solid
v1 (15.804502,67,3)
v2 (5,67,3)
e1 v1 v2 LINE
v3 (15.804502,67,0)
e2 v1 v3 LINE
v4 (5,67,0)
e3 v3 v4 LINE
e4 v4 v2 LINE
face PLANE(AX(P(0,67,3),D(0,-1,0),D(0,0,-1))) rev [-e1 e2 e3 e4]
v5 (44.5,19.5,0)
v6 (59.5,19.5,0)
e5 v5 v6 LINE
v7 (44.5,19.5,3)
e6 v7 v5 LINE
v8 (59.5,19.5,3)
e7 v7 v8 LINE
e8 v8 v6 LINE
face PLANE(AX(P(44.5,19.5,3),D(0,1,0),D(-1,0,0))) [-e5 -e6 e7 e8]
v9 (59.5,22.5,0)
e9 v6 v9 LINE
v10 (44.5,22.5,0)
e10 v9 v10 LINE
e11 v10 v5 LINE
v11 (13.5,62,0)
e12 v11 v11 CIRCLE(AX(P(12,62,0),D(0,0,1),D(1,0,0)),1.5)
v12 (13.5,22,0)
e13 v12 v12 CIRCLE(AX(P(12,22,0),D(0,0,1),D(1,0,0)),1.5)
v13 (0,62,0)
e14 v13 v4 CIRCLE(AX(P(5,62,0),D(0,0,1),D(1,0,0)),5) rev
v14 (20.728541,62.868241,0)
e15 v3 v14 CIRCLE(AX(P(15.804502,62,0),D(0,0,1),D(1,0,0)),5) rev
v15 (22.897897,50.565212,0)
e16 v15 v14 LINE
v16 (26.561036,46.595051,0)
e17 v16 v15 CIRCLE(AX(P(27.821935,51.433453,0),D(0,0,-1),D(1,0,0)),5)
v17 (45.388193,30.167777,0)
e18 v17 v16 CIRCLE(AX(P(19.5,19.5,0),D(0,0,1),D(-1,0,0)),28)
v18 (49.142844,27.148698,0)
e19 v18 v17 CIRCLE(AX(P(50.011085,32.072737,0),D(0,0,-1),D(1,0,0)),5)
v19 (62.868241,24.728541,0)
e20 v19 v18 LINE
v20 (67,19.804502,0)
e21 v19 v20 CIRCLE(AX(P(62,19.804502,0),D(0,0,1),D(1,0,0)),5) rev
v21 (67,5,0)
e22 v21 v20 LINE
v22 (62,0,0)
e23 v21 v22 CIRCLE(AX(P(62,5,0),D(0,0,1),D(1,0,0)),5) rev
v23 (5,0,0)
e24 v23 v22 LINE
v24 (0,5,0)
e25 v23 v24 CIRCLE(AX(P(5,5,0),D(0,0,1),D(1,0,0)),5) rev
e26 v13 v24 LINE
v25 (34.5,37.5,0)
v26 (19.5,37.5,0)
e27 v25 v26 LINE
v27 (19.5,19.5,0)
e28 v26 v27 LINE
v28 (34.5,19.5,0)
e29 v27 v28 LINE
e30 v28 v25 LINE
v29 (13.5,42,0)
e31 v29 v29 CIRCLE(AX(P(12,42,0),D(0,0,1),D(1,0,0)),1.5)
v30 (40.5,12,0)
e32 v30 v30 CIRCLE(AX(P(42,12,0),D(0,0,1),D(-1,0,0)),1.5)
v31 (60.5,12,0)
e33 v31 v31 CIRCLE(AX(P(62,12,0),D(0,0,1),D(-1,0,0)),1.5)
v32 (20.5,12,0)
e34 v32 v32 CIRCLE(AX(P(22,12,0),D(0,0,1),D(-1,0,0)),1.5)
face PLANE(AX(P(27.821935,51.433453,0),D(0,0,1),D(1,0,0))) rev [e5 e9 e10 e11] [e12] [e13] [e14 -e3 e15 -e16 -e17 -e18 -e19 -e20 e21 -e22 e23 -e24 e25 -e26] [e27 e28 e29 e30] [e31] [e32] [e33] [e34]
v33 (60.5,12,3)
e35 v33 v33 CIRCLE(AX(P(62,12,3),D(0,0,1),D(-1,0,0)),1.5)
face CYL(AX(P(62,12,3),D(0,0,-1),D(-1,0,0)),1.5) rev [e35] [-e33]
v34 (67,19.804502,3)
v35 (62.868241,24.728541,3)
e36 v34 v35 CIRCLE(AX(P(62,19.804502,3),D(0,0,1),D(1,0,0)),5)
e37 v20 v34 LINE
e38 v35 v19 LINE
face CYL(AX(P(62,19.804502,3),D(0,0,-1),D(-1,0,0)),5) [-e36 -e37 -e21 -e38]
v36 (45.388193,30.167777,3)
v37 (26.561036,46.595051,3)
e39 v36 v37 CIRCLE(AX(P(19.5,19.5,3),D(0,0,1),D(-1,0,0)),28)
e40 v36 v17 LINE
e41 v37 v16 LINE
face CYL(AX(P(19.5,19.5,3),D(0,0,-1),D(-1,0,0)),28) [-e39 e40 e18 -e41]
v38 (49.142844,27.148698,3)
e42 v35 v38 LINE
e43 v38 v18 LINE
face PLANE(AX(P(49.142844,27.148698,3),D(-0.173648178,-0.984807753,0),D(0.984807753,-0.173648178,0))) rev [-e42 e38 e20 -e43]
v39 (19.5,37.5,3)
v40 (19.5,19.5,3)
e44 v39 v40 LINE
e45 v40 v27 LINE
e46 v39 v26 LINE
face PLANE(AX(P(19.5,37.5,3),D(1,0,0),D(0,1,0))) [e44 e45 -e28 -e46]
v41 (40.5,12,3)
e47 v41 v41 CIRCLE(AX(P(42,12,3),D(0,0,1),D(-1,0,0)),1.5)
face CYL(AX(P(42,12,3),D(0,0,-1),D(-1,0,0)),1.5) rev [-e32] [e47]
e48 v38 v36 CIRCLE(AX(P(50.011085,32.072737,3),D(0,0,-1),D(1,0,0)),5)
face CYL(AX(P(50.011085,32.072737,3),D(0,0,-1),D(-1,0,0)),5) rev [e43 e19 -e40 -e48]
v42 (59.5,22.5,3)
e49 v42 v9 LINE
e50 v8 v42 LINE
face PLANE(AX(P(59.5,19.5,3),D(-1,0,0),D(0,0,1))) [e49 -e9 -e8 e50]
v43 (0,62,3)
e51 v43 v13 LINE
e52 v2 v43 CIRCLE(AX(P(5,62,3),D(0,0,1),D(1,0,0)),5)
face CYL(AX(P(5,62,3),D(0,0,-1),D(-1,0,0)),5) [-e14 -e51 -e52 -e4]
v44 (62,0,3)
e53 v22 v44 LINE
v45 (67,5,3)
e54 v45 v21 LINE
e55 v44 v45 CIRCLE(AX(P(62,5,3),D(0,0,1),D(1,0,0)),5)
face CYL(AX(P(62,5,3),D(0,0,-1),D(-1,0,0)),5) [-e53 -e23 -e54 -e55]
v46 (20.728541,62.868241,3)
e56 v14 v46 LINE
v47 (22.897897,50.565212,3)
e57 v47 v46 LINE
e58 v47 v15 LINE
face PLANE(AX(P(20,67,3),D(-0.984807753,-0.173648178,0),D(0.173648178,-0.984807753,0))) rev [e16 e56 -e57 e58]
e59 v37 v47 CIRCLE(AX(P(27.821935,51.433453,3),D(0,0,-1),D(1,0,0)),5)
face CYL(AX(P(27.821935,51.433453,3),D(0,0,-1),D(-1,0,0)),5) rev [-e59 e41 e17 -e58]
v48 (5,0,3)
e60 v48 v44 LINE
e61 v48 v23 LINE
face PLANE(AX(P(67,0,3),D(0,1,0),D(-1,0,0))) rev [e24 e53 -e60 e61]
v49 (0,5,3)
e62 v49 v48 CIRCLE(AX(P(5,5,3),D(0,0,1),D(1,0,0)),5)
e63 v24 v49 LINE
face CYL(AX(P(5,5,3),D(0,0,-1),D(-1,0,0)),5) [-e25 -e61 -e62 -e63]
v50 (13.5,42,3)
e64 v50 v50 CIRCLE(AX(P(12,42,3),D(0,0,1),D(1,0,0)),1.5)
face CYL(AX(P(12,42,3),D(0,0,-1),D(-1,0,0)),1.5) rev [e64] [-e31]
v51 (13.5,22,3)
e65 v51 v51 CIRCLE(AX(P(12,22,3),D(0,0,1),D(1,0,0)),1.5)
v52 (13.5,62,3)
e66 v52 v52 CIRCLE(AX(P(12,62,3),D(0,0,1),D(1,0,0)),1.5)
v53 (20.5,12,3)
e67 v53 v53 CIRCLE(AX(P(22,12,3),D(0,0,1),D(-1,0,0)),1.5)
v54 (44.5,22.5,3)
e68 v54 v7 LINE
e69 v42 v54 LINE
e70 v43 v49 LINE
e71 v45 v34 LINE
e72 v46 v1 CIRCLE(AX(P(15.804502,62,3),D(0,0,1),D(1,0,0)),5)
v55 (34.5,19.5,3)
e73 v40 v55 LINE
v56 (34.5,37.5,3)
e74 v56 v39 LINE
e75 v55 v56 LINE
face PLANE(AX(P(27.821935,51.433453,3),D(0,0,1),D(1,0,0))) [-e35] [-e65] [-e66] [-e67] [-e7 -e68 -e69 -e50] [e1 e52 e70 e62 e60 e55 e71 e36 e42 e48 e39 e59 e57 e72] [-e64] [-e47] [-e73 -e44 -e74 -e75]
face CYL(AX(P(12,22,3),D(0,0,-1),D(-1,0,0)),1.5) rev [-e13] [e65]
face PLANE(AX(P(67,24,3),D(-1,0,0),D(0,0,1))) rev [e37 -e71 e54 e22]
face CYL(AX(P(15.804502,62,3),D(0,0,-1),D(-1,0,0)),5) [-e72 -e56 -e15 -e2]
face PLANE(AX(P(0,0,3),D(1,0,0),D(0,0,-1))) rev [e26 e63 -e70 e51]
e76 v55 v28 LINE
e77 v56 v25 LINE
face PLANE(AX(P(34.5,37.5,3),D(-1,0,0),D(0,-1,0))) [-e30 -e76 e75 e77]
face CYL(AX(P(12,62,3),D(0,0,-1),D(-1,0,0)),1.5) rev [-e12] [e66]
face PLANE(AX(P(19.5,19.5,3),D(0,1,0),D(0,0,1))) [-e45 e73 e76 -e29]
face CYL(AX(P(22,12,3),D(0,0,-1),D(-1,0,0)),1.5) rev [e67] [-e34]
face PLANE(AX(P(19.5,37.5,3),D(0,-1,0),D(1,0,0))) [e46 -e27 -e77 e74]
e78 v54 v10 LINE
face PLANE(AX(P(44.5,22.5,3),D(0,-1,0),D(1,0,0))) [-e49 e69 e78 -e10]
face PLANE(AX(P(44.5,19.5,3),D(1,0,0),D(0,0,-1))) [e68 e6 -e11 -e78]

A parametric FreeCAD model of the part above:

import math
import FreeCAD as App
import Part
import Sketcher

V = App.Vector
Q = App.Units.Quantity


def edges_at(feature, points):
    """Names of the edges that pass closest to the given points."""
    edges = feature.Shape.Edges
    near = lambda p: min(range(len(edges)), key=lambda i: edges[i].distToShape(Part.Vertex(*p))[0])
    return sorted({f"Edge{near(p) + 1}" for p in points})

doc = App.newDocument("Part")
body = doc.addObject("PartDesign::Body", "Body")

sketch1 = body.newObject("Sketcher::SketchObject", "Sketch")
sketch1.AttachmentSupport = (doc.getObject("XY_Plane"), [""])
sketch1.MapMode = "FlatFace"
sketch1.addGeometry([
    Part.LineSegment(V(0, 67, 0), V(0, 0, 0)),
    Part.LineSegment(V(0, 0, 0), V(67, 0, 0)),
    Part.LineSegment(V(67, 0, 0), V(67, 24, 0)),
    Part.LineSegment(V(67, 24, 0), V(49.1, 27.1, 0)),
    Part.ArcOfCircle(Part.Circle(V(50, 32.1, 0), V(0, 0, 1), 5), math.radians(-158), math.radians(-100)),
    Part.ArcOfCircle(Part.Circle(V(19.5, 19.5, 0), V(0, 0, 1), 28), math.radians(22), math.radians(75)),
    Part.ArcOfCircle(Part.Circle(V(27.8, 51.4, 0), V(0, 0, 1), 5), math.radians(-170), math.radians(-105)),
    Part.LineSegment(V(22.9, 50.6, 0), V(20, 67, 0)),
    Part.LineSegment(V(20, 67, 0), V(0, 67, 0)),
    Part.Circle(V(62, 12, 0), V(0, 0, 1), 1.5),
    Part.LineSegment(V(44.5, 19.5, 0), V(44.5, 22.5, 0)),
    Part.LineSegment(V(44.5, 22.5, 0), V(59.5, 22.5, 0)),
    Part.LineSegment(V(59.5, 22.5, 0), V(59.5, 19.5, 0)),
    Part.LineSegment(V(59.5, 19.5, 0), V(44.5, 19.5, 0)),
    Part.Circle(V(42, 12, 0), V(0, 0, 1), 1.5),
    Part.Circle(V(22, 12, 0), V(0, 0, 1), 1.5),
    Part.Circle(V(12, 22, 0), V(0, 0, 1), 1.5),
    Part.LineSegment(V(19.5, 19.5, 0), V(19.5, 37.5, 0)),
    Part.LineSegment(V(19.5, 37.5, 0), V(34.5, 37.5, 0)),
    Part.LineSegment(V(34.5, 37.5, 0), V(34.5, 19.5, 0)),
    Part.LineSegment(V(34.5, 19.5, 0), V(19.5, 19.5, 0)),
    Part.Circle(V(12, 42, 0), V(0, 0, 1), 1.5),
    Part.Circle(V(12, 62, 0), V(0, 0, 1), 1.5),
], False)
sketch1.addConstraint([
    Sketcher.Constraint("Coincident", 0, 2, 1, 1),
    Sketcher.Constraint("Coincident", 1, 2, 2, 1),
    Sketcher.Constraint("Coincident", 2, 2, 3, 1),
    Sketcher.Constraint("Tangent", 3, 2, 4, 2),
    Sketcher.Constraint("Tangent", 4, 1, 5, 1),
    Sketcher.Constraint("Tangent", 5, 2, 6, 2),
    Sketcher.Constraint("Tangent", 6, 1, 7, 1),
    Sketcher.Constraint("Coincident", 7, 2, 8, 1),
    Sketcher.Constraint("Coincident", 8, 2, 0, 1),
    Sketcher.Constraint("Coincident", 10, 2, 11, 1),
    Sketcher.Constraint("Coincident", 11, 2, 12, 1),
    Sketcher.Constraint("Coincident", 12, 2, 13, 1),
    Sketcher.Constraint("Coincident", 13, 2, 10, 1),
    Sketcher.Constraint("Coincident", 17, 2, 18, 1),
    Sketcher.Constraint("Coincident", 18, 2, 19, 1),
    Sketcher.Constraint("Coincident", 19, 2, 20, 1),
    Sketcher.Constraint("Coincident", 20, 2, 17, 1),
    Sketcher.Constraint("Vertical", 0),
    Sketcher.Constraint("Horizontal", 1),
    Sketcher.Constraint("Vertical", 2),
    Sketcher.Constraint("Horizontal", 8),
    Sketcher.Constraint("Vertical", 10),
    Sketcher.Constraint("Horizontal", 11),
    Sketcher.Constraint("Vertical", 12),
    Sketcher.Constraint("Horizontal", 13),
    Sketcher.Constraint("Vertical", 17),
    Sketcher.Constraint("Horizontal", 18),
    Sketcher.Constraint("Vertical", 19),
    Sketcher.Constraint("Horizontal", 20),
    Sketcher.Constraint("Coincident", 0, 2, -1, 1),
    Sketcher.Constraint("Coincident", 20, 2, 5, 3),
    Sketcher.Constraint("Equal", 4, 6),
    Sketcher.Constraint("Equal", 9, 14),
    Sketcher.Constraint("Equal", 14, 15),
    Sketcher.Constraint("Equal", 15, 16),
    Sketcher.Constraint("Equal", 16, 21),
    Sketcher.Constraint("Equal", 21, 22),
    Sketcher.Constraint("Horizontal", 9, 3, 14, 3),
    Sketcher.Constraint("Horizontal", 14, 3, 15, 3),
    Sketcher.Constraint("Horizontal", 5, 3, 12, 2),
    Sketcher.Constraint("Vertical", 16, 3, 21, 3),
    Sketcher.Constraint("Vertical", 21, 3, 22, 3),
    Sketcher.Constraint("Equal", 13, 18),
    Sketcher.Constraint("Equal", 1, 0),
    Sketcher.Constraint("Diameter", 9, 3.0),
    Sketcher.Constraint("Radius", 4, 5.0),
    Sketcher.Constraint("Radius", 5, 28.0),
    Sketcher.Constraint("DistanceX", 1, 1, 1, 2, 67.0),
    Sketcher.Constraint("DistanceX", 8, 2, 8, 1, 20.0),
    Sketcher.Constraint("DistanceX", 11, 1, 11, 2, 15.0),
    Sketcher.Constraint("DistanceY", 2, 1, 2, 2, 24.0),
    Sketcher.Constraint("DistanceY", 10, 1, 10, 2, 3.0),
    Sketcher.Constraint("DistanceY", 17, 1, 17, 2, 18.0),
    Sketcher.Constraint("Angle", 3, Q("170 deg")),
    Sketcher.Constraint("Angle", 7, Q("100 deg")),
    Sketcher.Constraint("DistanceX", -1, 1, 9, 3, 62.0),
    Sketcher.Constraint("DistanceY", -1, 1, 9, 3, 12.0),
    Sketcher.Constraint("DistanceX", -1, 1, 14, 3, 42.0),
    Sketcher.Constraint("DistanceX", -1, 1, 15, 3, 22.0),
    Sketcher.Constraint("DistanceX", -1, 1, 16, 3, 12.0),
    Sketcher.Constraint("DistanceY", -1, 1, 16, 3, 22.0),
    Sketcher.Constraint("DistanceY", -1, 1, 21, 3, 42.0),
    Sketcher.Constraint("DistanceY", -1, 1, 22, 3, 62.0),
    Sketcher.Constraint("DistanceX", 19, 2, 13, 2, 10.0),
    Sketcher.Constraint("DistanceX", -1, 1, 5, 3, 19.5),
    Sketcher.Constraint("DistanceY", -1, 1, 5, 3, 19.5),
])
pad1 = body.newObject("PartDesign::Pad", "Pad")
pad1.Profile = sketch1
pad1.Length = 3
doc.recompute()

fillet = body.newObject("PartDesign::Fillet", "Fillet")
fillet.Base = (pad1, edges_at(pad1, [
    (0, 0, 1.5),
    (0, 67, 1.5),
    (20, 67, 1.5),
    (67, 24, 1.5),
    (67, 0, 1.5),
]))
fillet.Radius = 5

doc.recompute()
